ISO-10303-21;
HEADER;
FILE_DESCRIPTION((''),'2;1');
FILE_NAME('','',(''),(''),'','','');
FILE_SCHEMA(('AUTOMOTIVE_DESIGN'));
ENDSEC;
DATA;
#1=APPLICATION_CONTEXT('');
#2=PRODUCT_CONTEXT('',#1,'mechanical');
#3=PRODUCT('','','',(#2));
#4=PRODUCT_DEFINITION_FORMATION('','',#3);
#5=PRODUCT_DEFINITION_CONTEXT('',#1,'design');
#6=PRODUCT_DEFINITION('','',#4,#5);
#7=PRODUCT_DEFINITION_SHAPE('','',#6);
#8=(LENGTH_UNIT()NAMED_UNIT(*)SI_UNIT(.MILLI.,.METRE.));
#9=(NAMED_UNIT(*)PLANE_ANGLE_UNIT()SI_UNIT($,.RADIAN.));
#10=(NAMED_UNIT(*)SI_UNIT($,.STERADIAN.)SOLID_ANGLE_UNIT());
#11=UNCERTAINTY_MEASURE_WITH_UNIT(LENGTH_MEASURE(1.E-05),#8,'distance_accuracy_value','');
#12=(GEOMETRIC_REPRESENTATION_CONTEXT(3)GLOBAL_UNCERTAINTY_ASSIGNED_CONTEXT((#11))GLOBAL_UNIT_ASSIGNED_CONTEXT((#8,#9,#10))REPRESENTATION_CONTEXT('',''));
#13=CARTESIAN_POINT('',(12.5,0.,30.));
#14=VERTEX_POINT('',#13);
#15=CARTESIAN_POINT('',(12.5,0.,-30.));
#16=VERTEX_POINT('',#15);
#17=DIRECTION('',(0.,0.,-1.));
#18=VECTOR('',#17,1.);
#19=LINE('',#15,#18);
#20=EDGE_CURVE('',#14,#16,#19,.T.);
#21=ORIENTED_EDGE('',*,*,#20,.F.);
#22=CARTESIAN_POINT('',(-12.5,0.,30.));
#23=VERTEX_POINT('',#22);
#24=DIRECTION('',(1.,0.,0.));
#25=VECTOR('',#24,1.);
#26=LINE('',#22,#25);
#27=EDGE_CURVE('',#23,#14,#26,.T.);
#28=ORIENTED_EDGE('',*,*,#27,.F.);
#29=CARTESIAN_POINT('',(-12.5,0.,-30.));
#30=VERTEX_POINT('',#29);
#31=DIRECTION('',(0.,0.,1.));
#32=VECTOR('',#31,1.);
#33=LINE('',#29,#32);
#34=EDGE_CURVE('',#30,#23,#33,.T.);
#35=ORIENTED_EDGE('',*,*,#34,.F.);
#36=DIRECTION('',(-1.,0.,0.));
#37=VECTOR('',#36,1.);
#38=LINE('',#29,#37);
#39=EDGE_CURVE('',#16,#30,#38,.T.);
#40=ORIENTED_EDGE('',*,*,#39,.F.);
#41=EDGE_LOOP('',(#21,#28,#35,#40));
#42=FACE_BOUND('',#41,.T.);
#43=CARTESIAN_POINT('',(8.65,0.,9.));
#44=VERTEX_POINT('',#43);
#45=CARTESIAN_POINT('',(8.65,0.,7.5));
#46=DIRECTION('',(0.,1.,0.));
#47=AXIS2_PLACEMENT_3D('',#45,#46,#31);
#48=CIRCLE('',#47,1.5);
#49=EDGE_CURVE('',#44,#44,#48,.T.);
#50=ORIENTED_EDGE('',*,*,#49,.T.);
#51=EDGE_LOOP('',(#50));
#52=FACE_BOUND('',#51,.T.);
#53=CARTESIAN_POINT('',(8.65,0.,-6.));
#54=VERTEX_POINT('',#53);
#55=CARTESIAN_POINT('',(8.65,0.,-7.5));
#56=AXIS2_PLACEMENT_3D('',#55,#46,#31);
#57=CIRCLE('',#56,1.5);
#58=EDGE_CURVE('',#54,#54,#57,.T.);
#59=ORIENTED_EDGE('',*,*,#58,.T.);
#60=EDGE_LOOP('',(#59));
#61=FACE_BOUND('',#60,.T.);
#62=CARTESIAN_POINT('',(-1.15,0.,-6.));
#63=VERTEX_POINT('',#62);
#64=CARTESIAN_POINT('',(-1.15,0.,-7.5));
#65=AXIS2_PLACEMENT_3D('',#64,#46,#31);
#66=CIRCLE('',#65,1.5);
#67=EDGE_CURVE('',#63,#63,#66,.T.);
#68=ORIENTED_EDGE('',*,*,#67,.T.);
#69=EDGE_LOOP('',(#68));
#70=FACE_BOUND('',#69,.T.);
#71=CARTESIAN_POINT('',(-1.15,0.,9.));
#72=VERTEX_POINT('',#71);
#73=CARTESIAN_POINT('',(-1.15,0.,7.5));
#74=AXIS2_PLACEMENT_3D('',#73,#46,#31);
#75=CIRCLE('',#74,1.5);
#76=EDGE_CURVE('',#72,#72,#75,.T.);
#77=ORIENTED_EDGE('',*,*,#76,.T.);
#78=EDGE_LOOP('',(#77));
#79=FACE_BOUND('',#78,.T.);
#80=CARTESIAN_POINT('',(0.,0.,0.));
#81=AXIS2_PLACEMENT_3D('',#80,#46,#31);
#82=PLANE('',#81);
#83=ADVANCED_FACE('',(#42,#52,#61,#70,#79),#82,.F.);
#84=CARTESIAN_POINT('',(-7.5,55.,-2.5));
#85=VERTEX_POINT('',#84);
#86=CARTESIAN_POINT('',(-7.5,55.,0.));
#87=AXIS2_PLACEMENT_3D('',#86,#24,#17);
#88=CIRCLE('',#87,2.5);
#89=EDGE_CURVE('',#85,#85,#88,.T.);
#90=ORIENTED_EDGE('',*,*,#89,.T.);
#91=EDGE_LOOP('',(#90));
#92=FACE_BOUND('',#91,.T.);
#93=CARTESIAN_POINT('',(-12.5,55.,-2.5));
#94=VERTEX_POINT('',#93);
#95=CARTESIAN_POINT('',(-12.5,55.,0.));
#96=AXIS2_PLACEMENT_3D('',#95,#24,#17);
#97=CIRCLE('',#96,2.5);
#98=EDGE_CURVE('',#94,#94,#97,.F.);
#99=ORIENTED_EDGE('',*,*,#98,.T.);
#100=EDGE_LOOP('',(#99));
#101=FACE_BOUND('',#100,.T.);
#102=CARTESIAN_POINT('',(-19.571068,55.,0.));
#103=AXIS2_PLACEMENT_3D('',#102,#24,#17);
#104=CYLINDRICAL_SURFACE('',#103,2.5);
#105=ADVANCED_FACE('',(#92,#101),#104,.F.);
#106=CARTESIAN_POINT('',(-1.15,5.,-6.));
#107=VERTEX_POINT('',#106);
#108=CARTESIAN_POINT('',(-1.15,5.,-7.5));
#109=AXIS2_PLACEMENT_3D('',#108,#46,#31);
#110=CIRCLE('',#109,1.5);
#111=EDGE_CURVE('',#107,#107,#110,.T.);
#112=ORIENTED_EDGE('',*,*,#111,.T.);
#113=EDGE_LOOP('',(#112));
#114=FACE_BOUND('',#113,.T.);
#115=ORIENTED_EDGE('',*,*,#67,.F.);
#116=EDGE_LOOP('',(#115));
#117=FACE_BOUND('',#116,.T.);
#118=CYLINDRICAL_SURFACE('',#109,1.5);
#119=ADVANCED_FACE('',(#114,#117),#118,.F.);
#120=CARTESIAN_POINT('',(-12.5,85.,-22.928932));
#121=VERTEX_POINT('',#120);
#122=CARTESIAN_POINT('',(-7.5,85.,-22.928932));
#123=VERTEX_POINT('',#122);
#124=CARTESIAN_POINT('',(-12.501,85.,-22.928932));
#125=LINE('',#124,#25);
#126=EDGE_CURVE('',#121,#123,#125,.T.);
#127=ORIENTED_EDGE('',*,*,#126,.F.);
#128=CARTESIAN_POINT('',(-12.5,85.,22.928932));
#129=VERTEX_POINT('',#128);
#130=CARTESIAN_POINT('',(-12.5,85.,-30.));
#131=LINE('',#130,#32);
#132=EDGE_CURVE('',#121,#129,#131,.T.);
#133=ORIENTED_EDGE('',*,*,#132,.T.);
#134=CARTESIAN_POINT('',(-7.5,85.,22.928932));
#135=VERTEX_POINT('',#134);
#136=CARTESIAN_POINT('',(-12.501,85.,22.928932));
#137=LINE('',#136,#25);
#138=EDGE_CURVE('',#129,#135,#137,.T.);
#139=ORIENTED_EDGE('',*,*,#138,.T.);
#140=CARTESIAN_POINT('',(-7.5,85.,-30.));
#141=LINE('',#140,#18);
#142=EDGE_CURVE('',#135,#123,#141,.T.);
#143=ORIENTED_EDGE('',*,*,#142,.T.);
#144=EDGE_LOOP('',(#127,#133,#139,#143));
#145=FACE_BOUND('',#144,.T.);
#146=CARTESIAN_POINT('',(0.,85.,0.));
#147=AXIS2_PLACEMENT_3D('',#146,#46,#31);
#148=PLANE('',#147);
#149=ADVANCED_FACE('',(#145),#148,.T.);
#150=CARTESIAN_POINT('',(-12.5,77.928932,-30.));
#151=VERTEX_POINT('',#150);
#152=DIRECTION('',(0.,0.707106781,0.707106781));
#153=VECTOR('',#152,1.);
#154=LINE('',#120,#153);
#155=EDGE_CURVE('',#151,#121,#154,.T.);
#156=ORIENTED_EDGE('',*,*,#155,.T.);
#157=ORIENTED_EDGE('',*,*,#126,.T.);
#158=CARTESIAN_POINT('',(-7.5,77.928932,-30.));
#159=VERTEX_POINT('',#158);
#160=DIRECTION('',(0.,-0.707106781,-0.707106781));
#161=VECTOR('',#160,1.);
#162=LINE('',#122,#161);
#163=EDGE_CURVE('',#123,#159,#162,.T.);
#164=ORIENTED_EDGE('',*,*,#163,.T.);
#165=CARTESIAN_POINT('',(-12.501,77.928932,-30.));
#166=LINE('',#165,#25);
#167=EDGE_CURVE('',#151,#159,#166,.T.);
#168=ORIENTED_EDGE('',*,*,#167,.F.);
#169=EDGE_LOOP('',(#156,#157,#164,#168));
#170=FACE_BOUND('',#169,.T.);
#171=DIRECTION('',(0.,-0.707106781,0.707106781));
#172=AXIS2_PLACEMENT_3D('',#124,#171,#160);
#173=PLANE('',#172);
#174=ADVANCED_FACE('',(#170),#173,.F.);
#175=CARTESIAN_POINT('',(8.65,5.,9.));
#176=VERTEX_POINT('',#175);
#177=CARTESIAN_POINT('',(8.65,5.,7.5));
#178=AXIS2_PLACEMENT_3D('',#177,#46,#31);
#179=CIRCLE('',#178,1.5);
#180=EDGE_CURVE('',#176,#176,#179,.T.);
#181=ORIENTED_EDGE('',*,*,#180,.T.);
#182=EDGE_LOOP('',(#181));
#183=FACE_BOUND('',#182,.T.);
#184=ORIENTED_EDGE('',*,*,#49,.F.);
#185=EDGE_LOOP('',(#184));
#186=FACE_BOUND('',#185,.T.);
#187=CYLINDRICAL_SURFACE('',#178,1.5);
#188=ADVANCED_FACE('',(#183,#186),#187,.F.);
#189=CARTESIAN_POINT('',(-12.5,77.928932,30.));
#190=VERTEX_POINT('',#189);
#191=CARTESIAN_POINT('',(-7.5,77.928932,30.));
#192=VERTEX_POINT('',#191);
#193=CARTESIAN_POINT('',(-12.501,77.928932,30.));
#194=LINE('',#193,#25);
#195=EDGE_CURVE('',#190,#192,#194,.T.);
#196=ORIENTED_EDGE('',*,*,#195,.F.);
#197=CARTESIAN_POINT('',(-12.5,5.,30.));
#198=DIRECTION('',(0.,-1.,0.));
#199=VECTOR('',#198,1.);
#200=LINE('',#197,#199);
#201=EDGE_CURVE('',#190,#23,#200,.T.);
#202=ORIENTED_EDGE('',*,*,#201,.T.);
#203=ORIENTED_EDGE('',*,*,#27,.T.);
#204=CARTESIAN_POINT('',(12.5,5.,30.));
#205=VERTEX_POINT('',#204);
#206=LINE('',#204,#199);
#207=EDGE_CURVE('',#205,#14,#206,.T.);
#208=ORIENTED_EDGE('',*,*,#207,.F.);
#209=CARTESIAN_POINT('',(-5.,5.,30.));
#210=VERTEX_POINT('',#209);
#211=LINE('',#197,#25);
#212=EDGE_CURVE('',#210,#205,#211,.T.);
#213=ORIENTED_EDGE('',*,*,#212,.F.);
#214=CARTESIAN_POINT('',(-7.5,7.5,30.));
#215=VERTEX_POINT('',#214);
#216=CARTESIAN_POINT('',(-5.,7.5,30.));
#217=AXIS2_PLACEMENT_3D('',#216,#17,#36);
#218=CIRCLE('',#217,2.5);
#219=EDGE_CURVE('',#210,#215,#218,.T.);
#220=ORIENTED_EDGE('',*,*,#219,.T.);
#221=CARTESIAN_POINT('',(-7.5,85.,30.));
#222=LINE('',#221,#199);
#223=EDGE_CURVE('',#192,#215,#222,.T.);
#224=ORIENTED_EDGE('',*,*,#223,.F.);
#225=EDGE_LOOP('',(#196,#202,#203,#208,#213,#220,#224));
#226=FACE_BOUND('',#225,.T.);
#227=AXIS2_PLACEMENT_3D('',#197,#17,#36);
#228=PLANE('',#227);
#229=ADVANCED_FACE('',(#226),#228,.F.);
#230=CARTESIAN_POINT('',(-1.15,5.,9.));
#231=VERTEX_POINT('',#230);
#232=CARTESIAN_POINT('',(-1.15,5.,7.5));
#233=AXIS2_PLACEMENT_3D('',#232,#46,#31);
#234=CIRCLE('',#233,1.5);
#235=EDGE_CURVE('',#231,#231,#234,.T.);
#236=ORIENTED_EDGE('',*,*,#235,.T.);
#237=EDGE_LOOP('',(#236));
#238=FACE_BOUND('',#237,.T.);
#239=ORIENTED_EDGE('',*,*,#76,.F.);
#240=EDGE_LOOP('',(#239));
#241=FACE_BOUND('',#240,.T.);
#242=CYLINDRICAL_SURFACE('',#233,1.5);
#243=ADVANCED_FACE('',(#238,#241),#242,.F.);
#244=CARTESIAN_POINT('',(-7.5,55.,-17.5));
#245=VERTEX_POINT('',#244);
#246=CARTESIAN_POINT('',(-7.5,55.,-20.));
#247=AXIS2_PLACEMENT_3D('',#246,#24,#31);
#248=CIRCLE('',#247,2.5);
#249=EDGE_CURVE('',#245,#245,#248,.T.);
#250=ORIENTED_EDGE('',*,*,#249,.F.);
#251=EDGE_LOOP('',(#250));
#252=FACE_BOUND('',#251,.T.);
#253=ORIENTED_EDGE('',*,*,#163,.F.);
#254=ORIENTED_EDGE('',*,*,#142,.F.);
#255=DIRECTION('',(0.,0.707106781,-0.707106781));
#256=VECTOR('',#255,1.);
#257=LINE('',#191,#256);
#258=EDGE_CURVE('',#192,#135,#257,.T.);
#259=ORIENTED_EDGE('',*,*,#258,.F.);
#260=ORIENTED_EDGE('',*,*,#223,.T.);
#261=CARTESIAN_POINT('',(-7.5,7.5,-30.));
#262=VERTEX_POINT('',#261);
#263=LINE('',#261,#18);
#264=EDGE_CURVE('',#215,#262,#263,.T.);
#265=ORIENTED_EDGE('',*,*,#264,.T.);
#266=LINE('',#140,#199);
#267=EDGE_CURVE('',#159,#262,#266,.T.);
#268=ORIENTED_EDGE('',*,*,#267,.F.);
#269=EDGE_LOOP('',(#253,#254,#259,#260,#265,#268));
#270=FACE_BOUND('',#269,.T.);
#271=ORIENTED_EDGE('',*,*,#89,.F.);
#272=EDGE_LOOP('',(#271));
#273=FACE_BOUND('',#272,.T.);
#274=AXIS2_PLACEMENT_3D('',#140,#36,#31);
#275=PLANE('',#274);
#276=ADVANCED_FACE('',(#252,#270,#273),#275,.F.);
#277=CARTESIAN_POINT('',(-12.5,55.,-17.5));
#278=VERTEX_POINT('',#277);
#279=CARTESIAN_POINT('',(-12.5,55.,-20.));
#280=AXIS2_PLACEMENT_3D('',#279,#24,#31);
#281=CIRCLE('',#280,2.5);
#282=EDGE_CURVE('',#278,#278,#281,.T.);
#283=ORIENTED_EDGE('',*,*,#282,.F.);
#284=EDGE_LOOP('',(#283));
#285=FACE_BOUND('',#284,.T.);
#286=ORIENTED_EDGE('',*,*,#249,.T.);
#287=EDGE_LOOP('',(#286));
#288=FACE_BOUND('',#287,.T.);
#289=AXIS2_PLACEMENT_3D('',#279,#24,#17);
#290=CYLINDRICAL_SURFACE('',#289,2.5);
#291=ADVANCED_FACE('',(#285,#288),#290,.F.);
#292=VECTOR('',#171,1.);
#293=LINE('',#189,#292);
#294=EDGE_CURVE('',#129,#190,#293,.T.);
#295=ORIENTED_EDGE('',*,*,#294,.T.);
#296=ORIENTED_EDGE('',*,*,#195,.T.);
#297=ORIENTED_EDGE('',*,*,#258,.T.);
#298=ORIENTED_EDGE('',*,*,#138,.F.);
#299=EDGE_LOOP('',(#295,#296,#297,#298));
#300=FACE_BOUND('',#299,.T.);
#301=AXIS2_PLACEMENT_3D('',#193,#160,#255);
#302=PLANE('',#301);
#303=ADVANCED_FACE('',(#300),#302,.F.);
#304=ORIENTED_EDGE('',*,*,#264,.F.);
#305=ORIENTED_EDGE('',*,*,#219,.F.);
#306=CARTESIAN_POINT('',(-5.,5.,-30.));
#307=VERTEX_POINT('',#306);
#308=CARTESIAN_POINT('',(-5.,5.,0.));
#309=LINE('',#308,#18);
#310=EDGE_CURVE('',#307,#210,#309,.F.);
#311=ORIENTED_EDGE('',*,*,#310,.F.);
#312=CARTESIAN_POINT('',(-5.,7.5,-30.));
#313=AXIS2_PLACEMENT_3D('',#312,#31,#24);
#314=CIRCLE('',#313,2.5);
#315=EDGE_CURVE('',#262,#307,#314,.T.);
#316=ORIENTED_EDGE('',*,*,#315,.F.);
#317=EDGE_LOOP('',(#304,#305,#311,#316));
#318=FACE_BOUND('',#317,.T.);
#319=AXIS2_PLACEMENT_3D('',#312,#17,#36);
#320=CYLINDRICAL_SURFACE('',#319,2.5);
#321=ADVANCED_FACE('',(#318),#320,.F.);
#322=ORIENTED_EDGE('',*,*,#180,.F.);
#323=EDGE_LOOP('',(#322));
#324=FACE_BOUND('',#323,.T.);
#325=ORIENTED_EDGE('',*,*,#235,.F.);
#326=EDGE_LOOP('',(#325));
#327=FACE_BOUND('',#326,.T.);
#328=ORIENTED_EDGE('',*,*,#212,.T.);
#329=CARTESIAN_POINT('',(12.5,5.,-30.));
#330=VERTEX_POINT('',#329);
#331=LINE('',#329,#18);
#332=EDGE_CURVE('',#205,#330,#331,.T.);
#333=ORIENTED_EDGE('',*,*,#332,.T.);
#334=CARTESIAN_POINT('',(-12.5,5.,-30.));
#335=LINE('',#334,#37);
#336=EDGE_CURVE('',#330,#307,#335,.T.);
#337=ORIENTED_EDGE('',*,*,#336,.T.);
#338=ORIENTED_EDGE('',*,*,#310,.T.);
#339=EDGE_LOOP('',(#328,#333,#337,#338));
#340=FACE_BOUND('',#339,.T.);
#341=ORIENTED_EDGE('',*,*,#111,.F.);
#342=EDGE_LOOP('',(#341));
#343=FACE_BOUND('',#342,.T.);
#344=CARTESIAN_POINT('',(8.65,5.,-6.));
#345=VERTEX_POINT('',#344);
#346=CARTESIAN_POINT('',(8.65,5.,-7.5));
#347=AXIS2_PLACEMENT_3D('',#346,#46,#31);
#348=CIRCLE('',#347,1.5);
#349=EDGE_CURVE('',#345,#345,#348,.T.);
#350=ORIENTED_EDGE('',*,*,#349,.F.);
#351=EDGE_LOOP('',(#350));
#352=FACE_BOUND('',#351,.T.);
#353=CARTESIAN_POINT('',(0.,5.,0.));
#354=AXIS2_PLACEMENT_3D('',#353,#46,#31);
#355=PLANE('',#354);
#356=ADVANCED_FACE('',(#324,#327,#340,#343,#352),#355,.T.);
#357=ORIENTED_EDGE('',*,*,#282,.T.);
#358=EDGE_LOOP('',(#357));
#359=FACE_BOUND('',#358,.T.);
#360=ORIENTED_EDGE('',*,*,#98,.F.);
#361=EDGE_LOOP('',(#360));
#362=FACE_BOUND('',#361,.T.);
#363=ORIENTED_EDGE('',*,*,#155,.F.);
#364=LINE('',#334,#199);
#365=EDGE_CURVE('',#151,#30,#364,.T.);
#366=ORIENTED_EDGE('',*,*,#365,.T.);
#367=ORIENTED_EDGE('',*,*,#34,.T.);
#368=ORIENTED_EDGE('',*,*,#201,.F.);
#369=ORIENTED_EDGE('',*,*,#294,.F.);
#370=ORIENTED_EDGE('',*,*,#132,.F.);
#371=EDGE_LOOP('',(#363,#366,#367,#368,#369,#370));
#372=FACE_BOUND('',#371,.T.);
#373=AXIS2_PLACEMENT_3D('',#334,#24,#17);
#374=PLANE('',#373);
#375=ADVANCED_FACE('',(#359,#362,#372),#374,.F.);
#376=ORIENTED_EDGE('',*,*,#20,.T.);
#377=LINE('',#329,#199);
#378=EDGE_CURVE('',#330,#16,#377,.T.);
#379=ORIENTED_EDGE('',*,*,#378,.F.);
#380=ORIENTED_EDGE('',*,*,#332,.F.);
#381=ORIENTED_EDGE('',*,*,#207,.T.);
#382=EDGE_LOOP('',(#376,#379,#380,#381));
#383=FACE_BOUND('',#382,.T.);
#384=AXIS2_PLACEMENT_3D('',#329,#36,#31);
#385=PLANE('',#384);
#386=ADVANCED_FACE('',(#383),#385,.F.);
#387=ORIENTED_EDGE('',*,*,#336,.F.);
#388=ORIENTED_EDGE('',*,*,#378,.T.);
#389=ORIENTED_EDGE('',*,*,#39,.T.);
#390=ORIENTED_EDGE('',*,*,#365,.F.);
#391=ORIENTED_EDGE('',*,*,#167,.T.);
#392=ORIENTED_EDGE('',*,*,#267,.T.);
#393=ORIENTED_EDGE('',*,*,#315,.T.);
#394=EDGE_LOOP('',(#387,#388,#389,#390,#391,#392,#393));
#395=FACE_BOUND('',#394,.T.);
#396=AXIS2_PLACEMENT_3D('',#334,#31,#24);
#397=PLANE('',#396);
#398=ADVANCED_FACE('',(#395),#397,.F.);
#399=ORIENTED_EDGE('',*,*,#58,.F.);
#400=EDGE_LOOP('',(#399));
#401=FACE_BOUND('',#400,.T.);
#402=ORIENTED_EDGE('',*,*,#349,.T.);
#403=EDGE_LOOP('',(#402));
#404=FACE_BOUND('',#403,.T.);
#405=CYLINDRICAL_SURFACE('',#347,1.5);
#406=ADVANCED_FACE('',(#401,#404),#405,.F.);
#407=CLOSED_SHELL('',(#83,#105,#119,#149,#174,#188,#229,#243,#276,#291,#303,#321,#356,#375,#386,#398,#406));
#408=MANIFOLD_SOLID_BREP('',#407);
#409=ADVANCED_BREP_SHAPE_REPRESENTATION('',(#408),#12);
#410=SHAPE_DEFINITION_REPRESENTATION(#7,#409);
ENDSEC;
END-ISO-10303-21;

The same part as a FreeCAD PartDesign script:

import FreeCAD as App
import Part
import Sketcher


def edges_at(feature, points):
    """Names of the edges that pass closest to the given points."""
    edges = feature.Shape.Edges
    near = lambda p: min(range(len(edges)), key=lambda i: edges[i].distToShape(Part.Vertex(*p))[0])
    return sorted({f"Edge{near(p) + 1}" for p in points})


def add_polygon(sketch, points):
    """Adds a closed chain of lines whose ends are joined by coincident constraints."""
    first, n = sketch.GeometryCount, len(points)
    for a, b in zip(points, points[1:] + points[:1]):
        sketch.addGeometry(Part.LineSegment(App.Vector(*a, 0), App.Vector(*b, 0)), False)
    for i in range(n):
        sketch.addConstraint(Sketcher.Constraint("Coincident", first + i, 2, first + (i + 1) % n, 1))

doc = App.newDocument("Part")
body = doc.addObject("PartDesign::Body", "Body")

# Sketch on XZ plane
sketch1 = body.newObject("Sketcher::SketchObject", "Sketch")
sketch1.AttachmentSupport = (doc.getObject("XZ_Plane"), [""])
sketch1.MapMode = "FlatFace"
add_polygon(sketch1, [(-12.5, -30), (-12.5, 30), (12.5, 30), (12.5, -30)])  # lines 0-3
sketch1.addConstraint([
    Sketcher.Constraint("Vertical", 0),
    Sketcher.Constraint("Horizontal", 1),
    Sketcher.Constraint("Vertical", 2),
    Sketcher.Constraint("Horizontal", 3),
    Sketcher.Constraint("Symmetric", 0, 2, 2, 2, -1, 1),
    Sketcher.Constraint("DistanceX", 1, 1, 1, 2, 25.0),
    Sketcher.Constraint("DistanceY", 0, 1, 0, 2, 60.0),
])
pad1 = body.newObject("PartDesign::Pad", "Pad")
pad1.Profile = sketch1
pad1.Length = 5
pad1.Reversed = True

# Sketch on XZ plane
sketch2 = body.newObject("Sketcher::SketchObject", "Sketch001")
sketch2.AttachmentSupport = (doc.getObject("XZ_Plane"), [""])
sketch2.MapMode = "FlatFace"
sketch2.AttachmentOffset = App.Placement(App.Vector(0, 0, -5), App.Rotation())
add_polygon(sketch2, [(-12.5, -30), (-12.5, 30), (-7.5, 30), (-7.5, -30)])  # lines 0-3
sketch2.addConstraint([
    Sketcher.Constraint("Vertical", 0),
    Sketcher.Constraint("Horizontal", 1),
    Sketcher.Constraint("Vertical", 2),
    Sketcher.Constraint("Horizontal", 3),
    Sketcher.Constraint("DistanceX", 1, 1, 1, 2, 5.0),
    Sketcher.Constraint("DistanceY", 0, 1, 0, 2, 60.0),
    Sketcher.Constraint("DistanceY", -1, 1, 0, 2, 30.0),
    Sketcher.Constraint("DistanceX", 0, 2, -1, 1, 12.5),
])
pad2 = body.newObject("PartDesign::Pad", "Pad001")
pad2.Profile = sketch2
pad2.Length = 80
pad2.Reversed = True

# Sketch on YZ plane
sketch3 = body.newObject("Sketcher::SketchObject", "Sketch002")
sketch3.AttachmentSupport = (doc.getObject("YZ_Plane"), [""])
sketch3.MapMode = "FlatFace"
sketch3.AttachmentOffset = App.Placement(App.Vector(0, 0, -7.5), App.Rotation())
sketch3.addGeometry(Part.Circle(App.Vector(55, 0, 0), App.Vector(0, 0, 1), 2.5), False)
sketch3.addConstraint([
    Sketcher.Constraint("PointOnObject", 0, 3, -1),
    Sketcher.Constraint("Diameter", 0, 5.0),
    Sketcher.Constraint("DistanceX", -1, 1, 0, 3, 55.0),
])
pocket1 = body.newObject("PartDesign::Pocket", "Pocket")
pocket1.Profile = sketch3
pocket1.Length = 5

# Sketch on YZ plane
sketch4 = body.newObject("Sketcher::SketchObject", "Sketch003")
sketch4.AttachmentSupport = (doc.getObject("YZ_Plane"), [""])
sketch4.MapMode = "FlatFace"
sketch4.AttachmentOffset = App.Placement(App.Vector(0, 0, -7.5), App.Rotation())
add_polygon(sketch4, [(77.928932, 30), (85, 22.928932), (85, 30)])  # lines 0-2
sketch4.addConstraint([
    Sketcher.Constraint("Vertical", 1),
    Sketcher.Constraint("Horizontal", 2),
    Sketcher.Constraint("Equal", 2, 1),
    Sketcher.Constraint("Distance", 0, 10.0),
    Sketcher.Constraint("DistanceX", -1, 1, 0, 2, 85.0),
    Sketcher.Constraint("DistanceY", -1, 1, 1, 2, 30.0),
])
pocket2 = body.newObject("PartDesign::Pocket", "Pocket001")
pocket2.Profile = sketch4
pocket2.Type = "UpToFirst"

# Sketch on YZ plane
sketch5 = body.newObject("Sketcher::SketchObject", "Sketch004")
sketch5.AttachmentSupport = (doc.getObject("YZ_Plane"), [""])
sketch5.MapMode = "FlatFace"
sketch5.AttachmentOffset = App.Placement(App.Vector(0, 0, -7.5), App.Rotation())
add_polygon(sketch5, [(85, -22.928932), (77.928932, -30), (85, -30)])  # lines 0-2
sketch5.addConstraint([
    Sketcher.Constraint("Horizontal", 1),
    Sketcher.Constraint("Vertical", 2),
    Sketcher.Constraint("Equal", 1, 2),
    Sketcher.Constraint("Distance", 0, 10.0),
    Sketcher.Constraint("DistanceY", 0, 2, -1, 1, 30.0),
    Sketcher.Constraint("DistanceX", -1, 1, 1, 2, 85.0),
])
pocket3 = body.newObject("PartDesign::Pocket", "Pocket002")
pocket3.Profile = sketch5
pocket3.Type = "UpToFirst"
doc.recompute()

fillet = body.newObject("PartDesign::Fillet", "Fillet")
fillet.Base = (pocket3, edges_at(pocket3, [(-7.5, 5, 0)]))
fillet.Radius = 2.5

# Sketch on XZ plane
sketch6 = body.newObject("Sketcher::SketchObject", "Sketch005")
sketch6.AttachmentSupport = (doc.getObject("XZ_Plane"), [""])
sketch6.MapMode = "FlatFace"
sketch6.AttachmentOffset = App.Placement(App.Vector(0, 0, -5), App.Rotation())
sketch6.addGeometry([
    Part.Circle(App.Vector(-1.15, 7.5, 0), App.Vector(0, 0, 1), 1.5),
    Part.Circle(App.Vector(-1.15, -7.5, 0), App.Vector(0, 0, 1), 1.5),
], False)
sketch6.addConstraint([
    Sketcher.Constraint("Equal", 0, 1),
    Sketcher.Constraint("Symmetric", 0, 3, 1, 3, -1),
    Sketcher.Constraint("Diameter", 0, 3.0),
    Sketcher.Constraint("DistanceY", 1, 3, 0, 3, 15.0),
    Sketcher.Constraint("DistanceX", 0, 3, -1, 1, 1.15),
])
doc.recompute()
hole = body.newObject("PartDesign::Hole", "Hole")
hole.Profile = sketch6
hole.ThreadType = "None"
hole.Diameter = 3
hole.DepthType = "ThroughAll"
hole.Reversed = True
doc.recompute()

datumplane = body.newObject("PartDesign::Plane", "DatumPlane")
datumplane.AttachmentSupport = (doc.getObject("YZ_Plane"), [""])
datumplane.MapMode = "FlatFace"
datumplane.AttachmentOffset = App.Placement(App.Vector(0, 0, 3.75), App.Rotation())
mirrored = body.newObject("PartDesign::Mirrored", "Mirrored")
mirrored.Originals = [hole]
mirrored.MirrorPlane = (datumplane, [""])
body.Tip = mirrored

# Sketch on YZ plane
sketch7 = body.newObject("Sketcher::SketchObject", "Sketch006")
sketch7.AttachmentSupport = (doc.getObject("YZ_Plane"), [""])
sketch7.MapMode = "FlatFace"
sketch7.AttachmentOffset = App.Placement(App.Vector(0, 0, -7.5), App.Rotation())
sketch7.addGeometry(Part.Circle(App.Vector(55, -20, 0), App.Vector(0, 0, 1), 2.5), False)
sketch7.addConstraint([
    Sketcher.Constraint("Diameter", 0, 5.0),
    Sketcher.Constraint("DistanceX", -1, 1, 0, 3, 55.0),
    Sketcher.Constraint("DistanceY", 0, 3, -1, 1, 20.0),
])
pocket4 = body.newObject("PartDesign::Pocket", "Pocket003")
pocket4.Profile = sketch7
pocket4.Type = "ThroughAll"

doc.recompute()
